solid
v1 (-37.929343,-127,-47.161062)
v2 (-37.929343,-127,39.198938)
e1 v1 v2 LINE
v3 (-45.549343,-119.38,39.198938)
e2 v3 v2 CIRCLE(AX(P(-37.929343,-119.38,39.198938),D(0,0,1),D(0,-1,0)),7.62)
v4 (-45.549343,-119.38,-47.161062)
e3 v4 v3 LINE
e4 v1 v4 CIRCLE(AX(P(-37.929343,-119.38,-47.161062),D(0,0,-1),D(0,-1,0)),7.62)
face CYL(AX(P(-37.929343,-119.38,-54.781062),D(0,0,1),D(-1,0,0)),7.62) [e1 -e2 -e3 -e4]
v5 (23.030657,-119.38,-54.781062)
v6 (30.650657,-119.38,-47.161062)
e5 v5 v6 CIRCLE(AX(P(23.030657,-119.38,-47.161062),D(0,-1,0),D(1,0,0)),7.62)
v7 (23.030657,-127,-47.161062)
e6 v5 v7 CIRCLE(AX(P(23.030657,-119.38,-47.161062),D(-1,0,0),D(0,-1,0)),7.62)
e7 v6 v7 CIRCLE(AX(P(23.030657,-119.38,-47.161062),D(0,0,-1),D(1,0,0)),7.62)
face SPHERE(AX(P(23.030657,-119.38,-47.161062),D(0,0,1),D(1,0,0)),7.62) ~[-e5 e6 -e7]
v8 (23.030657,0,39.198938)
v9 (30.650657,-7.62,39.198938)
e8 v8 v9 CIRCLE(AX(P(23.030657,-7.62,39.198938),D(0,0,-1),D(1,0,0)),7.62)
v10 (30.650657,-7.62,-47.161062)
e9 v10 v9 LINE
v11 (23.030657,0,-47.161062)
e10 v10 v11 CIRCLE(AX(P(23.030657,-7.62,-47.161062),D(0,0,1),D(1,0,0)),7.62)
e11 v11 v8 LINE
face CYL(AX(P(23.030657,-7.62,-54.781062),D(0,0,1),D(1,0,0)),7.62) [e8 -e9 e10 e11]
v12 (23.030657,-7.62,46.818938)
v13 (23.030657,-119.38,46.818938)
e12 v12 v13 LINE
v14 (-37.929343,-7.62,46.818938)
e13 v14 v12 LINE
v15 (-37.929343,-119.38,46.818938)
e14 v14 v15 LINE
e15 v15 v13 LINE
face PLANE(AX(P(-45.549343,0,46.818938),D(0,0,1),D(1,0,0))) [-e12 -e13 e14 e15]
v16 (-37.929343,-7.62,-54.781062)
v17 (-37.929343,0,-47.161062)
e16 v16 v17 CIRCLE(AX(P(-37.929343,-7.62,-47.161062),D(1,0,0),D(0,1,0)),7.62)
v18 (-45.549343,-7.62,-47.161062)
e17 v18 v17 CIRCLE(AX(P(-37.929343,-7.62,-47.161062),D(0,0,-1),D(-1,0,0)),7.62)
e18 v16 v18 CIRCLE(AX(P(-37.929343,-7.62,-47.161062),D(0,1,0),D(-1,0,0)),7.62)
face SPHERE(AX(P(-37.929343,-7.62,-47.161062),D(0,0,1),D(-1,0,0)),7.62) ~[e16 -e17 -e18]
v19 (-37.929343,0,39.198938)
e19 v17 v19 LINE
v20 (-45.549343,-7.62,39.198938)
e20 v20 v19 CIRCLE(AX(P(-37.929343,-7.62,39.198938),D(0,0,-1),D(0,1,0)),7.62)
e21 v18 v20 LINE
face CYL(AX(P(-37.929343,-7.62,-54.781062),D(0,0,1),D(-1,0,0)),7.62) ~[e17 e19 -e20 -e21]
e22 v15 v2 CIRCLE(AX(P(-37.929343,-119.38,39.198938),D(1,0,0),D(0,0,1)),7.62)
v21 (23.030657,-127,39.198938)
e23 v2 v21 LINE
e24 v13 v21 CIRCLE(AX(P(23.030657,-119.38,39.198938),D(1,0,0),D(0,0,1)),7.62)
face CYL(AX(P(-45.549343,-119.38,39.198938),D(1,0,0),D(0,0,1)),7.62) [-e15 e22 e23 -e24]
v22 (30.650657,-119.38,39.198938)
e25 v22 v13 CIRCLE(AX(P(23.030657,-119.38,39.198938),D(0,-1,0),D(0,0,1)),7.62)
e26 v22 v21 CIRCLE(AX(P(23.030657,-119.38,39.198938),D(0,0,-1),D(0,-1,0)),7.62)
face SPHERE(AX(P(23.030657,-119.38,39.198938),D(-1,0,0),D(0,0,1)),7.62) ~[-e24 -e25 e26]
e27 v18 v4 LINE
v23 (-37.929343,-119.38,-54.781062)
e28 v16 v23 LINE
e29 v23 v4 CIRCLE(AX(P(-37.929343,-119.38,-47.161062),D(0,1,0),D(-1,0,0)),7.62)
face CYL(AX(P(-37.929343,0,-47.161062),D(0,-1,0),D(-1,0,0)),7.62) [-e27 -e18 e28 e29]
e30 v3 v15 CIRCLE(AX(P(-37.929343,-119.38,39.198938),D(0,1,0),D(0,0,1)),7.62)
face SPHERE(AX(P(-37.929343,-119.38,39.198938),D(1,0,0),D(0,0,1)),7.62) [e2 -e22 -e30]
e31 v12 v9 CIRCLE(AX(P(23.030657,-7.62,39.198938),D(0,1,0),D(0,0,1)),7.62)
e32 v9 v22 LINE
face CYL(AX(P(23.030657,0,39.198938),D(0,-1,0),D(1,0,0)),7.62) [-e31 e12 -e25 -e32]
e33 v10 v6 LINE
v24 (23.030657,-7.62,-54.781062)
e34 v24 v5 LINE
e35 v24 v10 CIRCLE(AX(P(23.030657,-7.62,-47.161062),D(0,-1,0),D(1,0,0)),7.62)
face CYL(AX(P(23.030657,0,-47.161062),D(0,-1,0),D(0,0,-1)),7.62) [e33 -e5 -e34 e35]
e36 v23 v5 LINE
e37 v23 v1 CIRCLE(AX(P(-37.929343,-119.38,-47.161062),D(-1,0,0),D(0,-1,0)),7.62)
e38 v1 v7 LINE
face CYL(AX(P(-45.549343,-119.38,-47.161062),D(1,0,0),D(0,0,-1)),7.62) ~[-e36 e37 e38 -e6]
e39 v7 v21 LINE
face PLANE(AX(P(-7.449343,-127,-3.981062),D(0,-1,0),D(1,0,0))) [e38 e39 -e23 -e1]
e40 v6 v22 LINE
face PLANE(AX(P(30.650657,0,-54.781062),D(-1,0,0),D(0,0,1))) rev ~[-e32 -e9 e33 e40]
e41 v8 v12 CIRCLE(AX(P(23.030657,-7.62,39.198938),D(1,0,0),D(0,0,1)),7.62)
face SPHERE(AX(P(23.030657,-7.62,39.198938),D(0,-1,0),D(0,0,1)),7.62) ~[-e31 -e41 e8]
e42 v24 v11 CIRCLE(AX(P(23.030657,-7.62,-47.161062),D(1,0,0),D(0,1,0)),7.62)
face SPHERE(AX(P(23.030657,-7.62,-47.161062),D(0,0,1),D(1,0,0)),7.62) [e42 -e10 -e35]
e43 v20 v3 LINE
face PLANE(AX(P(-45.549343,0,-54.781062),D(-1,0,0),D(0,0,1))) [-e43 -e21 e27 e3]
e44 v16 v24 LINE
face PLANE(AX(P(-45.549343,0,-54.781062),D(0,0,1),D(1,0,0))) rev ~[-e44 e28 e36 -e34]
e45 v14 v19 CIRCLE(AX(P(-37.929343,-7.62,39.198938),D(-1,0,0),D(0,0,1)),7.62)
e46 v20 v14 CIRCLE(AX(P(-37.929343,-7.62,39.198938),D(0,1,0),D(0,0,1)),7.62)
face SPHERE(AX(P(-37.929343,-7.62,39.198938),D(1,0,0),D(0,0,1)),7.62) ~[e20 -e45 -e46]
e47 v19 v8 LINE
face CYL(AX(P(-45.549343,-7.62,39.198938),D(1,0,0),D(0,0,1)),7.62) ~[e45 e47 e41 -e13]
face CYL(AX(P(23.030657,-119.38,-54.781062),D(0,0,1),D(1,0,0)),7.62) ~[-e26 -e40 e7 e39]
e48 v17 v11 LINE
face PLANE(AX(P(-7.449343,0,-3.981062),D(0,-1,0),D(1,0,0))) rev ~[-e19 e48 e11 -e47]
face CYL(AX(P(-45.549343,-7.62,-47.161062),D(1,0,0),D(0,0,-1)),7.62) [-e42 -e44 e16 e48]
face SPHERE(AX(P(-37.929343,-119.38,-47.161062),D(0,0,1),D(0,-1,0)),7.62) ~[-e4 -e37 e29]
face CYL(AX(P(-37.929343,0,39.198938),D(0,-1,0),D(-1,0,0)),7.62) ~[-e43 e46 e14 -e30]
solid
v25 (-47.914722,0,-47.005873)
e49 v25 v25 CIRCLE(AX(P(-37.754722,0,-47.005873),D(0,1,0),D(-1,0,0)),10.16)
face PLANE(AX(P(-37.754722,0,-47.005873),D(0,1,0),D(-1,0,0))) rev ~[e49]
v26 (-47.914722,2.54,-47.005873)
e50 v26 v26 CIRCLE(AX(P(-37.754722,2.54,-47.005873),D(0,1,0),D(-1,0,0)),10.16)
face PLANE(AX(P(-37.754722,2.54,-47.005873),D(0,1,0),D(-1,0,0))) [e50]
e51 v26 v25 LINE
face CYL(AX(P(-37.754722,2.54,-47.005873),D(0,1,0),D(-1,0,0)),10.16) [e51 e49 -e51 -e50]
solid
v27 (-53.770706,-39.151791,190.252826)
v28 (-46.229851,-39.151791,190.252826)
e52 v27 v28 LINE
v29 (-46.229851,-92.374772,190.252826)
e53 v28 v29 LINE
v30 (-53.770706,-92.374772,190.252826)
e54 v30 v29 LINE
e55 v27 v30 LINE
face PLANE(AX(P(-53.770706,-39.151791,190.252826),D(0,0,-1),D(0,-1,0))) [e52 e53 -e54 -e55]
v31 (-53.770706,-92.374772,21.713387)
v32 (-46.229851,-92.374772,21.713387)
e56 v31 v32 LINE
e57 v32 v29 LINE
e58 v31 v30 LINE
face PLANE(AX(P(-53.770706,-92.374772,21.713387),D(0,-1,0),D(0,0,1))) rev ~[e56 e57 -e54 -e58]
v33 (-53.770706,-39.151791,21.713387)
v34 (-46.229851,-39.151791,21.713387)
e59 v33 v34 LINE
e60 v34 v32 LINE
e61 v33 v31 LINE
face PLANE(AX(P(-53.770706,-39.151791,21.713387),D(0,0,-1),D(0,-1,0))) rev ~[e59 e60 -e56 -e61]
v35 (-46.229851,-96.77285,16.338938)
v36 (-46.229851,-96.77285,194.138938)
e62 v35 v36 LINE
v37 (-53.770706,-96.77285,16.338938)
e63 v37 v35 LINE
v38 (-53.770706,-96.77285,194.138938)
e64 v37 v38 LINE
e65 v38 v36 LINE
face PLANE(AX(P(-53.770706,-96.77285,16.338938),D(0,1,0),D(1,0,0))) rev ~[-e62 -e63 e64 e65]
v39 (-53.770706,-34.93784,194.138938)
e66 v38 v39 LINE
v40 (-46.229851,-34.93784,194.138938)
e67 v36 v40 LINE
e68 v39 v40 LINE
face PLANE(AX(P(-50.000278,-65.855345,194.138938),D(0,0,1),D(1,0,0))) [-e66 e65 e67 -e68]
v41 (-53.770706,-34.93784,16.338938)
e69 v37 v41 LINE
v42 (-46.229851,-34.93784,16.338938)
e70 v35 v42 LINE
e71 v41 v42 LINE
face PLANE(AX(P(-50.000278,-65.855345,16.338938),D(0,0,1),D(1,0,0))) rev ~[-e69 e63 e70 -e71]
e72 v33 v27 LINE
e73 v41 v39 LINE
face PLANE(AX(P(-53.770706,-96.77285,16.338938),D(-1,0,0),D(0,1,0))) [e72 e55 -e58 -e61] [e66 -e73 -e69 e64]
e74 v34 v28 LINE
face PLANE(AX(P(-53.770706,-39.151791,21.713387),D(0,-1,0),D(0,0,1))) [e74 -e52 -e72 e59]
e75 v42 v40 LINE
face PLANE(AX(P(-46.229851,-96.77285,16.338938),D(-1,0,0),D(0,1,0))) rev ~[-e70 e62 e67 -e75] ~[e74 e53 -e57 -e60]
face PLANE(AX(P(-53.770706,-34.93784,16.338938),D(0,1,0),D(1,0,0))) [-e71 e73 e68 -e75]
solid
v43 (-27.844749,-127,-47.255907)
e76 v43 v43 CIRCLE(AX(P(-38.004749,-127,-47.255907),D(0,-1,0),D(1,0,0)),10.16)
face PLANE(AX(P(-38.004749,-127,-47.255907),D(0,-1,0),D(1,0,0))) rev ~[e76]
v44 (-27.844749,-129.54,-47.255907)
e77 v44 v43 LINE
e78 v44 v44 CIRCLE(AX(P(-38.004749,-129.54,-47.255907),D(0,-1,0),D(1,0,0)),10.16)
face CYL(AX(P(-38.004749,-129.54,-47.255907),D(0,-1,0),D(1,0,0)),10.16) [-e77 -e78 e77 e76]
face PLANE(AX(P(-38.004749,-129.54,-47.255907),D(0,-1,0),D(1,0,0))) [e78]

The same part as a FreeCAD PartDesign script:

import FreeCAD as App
import Part
import Sketcher
from FreeCAD import Vector
Q = App.Units.Quantity

doc = App.newDocument("Part")
body = doc.addObject("PartDesign::Body", "Body")

# Sketch on XZ plane
sketch1 = body.newObject("Sketcher::SketchObject", "Sketch")
sketch1.AttachmentSupport = (doc.getObject("XZ_Plane"), [""])
sketch1.MapMode = "FlatFace"
sketch1.addGeometry(Part.LineSegment(Vector(-45.549343, 46.818938, 0), Vector(-45.549343, -54.781062, 0)), False)
sketch1.addGeometry(Part.LineSegment(Vector(-45.549343, -54.781062, 0), Vector(30.650657, -54.781062, 0)), False)
sketch1.addGeometry(Part.LineSegment(Vector(30.650657, -54.781062, 0), Vector(30.650657, 46.818938, 0)), False)
sketch1.addGeometry(Part.LineSegment(Vector(30.650657, 46.818938, 0), Vector(-45.549343, 46.818938, 0)), False)
sketch1.addConstraint(Sketcher.Constraint("Coincident", 0, 2, 1, 1))
sketch1.addConstraint(Sketcher.Constraint("Coincident", 1, 2, 2, 1))
sketch1.addConstraint(Sketcher.Constraint("Coincident", 2, 2, 3, 1))
sketch1.addConstraint(Sketcher.Constraint("Coincident", 3, 2, 0, 1))
sketch1.addConstraint(Sketcher.Constraint("Vertical", 0))
sketch1.addConstraint(Sketcher.Constraint("Horizontal", 1))
sketch1.addConstraint(Sketcher.Constraint("Vertical", 2))
sketch1.addConstraint(Sketcher.Constraint("Horizontal", 3))
sketch1.addConstraint(Sketcher.Constraint("DistanceX", 1, 1, 1, 2, Q("3 in")))
sketch1.addConstraint(Sketcher.Constraint("DistanceY", 0, 2, 0, 1, Q("4 in")))
sketch1.addConstraint(Sketcher.Constraint("DistanceX", 0, 2, -1, 1, Q("45.549343 mm")))
sketch1.addConstraint(Sketcher.Constraint("DistanceY", 0, 2, -1, 1, Q("54.781062 mm")))
pad1 = body.newObject("PartDesign::Pad", "Pad")
pad1.Profile = sketch1
pad1.Length = Q("5 in")
doc.recompute()

fillet = body.newObject("PartDesign::Fillet", "Fillet")
fillet.Base = (pad1, ["Edge1"])
fillet.UseAllEdges = True
fillet.Radius = Q("0.3 in")
body2 = doc.addObject("PartDesign::Body", "Body001")

# Sketch on XZ plane
sketch2 = body2.newObject("Sketcher::SketchObject", "Sketch001")
sketch2.AttachmentSupport = (doc.getObject("XZ_Plane001"), [""])
sketch2.MapMode = "FlatFace"
sketch2.AttachmentOffset = App.Placement(Vector(0, 0, 5.1 * 25.4), App.Rotation())
sketch2.addGeometry(Part.Circle(Vector(-38.004749, -47.255907, 0), Vector(0, 0, 1), 10.16), False)
sketch2.addConstraint(Sketcher.Constraint("Diameter", 0, Q("0.8 in")))
sketch2.addConstraint(Sketcher.Constraint("DistanceX", 0, 3, -1, 1, Q("38.004749 mm")))
sketch2.addConstraint(Sketcher.Constraint("DistanceY", 0, 3, -1, 1, Q("47.255907 mm")))
pad2 = body2.newObject("PartDesign::Pad", "Pad001")
pad2.Profile = sketch2
pad2.Length = Q("0.1 in")
pad2.Reversed = True
body3 = doc.addObject("PartDesign::Body", "Body002")

# Sketch on XZ plane
sketch3 = body3.newObject("Sketcher::SketchObject", "Sketch002")
sketch3.AttachmentSupport = (doc.getObject("XZ_Plane002"), [""])
sketch3.MapMode = "FlatFace"
sketch3.AttachmentOffset = App.Placement(Vector(0, 0, -0.1 * 25.4), App.Rotation())
sketch3.addGeometry(Part.Circle(Vector(-37.754722, -47.005873, 0), Vector(0, 0, 1), 10.16), False)
sketch3.addConstraint(Sketcher.Constraint("Diameter", 0, Q("0.8 in")))
sketch3.addConstraint(Sketcher.Constraint("DistanceX", 0, 3, -1, 1, Q("37.754722 mm")))
sketch3.addConstraint(Sketcher.Constraint("DistanceY", 0, 3, -1, 1, Q("47.005873 mm")))
pad3 = body3.newObject("PartDesign::Pad", "Pad002")
pad3.Profile = sketch3
pad3.Length = Q("0.1 in")
body4 = doc.addObject("PartDesign::Body", "Body003")

# Sketch on XY plane
sketch4 = body4.newObject("Sketcher::SketchObject", "Sketch003")
sketch4.AttachmentSupport = (doc.getObject("XY_Plane003"), [""])
sketch4.MapMode = "FlatFace"
sketch4.AttachmentOffset = App.Placement(Vector(0, 0, 16.338938), App.Rotation())
sketch4.addGeometry(Part.LineSegment(Vector(-53.770706, -34.93784, 0), Vector(-53.770706, -96.77285, 0)), False)
sketch4.addGeometry(Part.LineSegment(Vector(-53.770706, -96.77285, 0), Vector(-46.229851, -96.77285, 0)), False)
sketch4.addGeometry(Part.LineSegment(Vector(-46.229851, -96.77285, 0), Vector(-46.229851, -34.93784, 0)), False)
sketch4.addGeometry(Part.LineSegment(Vector(-46.229851, -34.93784, 0), Vector(-53.770706, -34.93784, 0)), False)
sketch4.addConstraint(Sketcher.Constraint("Coincident", 0, 2, 1, 1))
sketch4.addConstraint(Sketcher.Constraint("Coincident", 1, 2, 2, 1))
sketch4.addConstraint(Sketcher.Constraint("Coincident", 2, 2, 3, 1))
sketch4.addConstraint(Sketcher.Constraint("Coincident", 3, 2, 0, 1))
sketch4.addConstraint(Sketcher.Constraint("Vertical", 0))
sketch4.addConstraint(Sketcher.Constraint("Horizontal", 1))
sketch4.addConstraint(Sketcher.Constraint("Vertical", 2))
sketch4.addConstraint(Sketcher.Constraint("Horizontal", 3))
sketch4.addConstraint(Sketcher.Constraint("DistanceY", 0, 2, 0, 1, Q("61.83501 mm")))
sketch4.addConstraint(Sketcher.Constraint("DistanceX", 1, 1, 1, 2, Q("7.540856 mm")))
sketch4.addConstraint(Sketcher.Constraint("DistanceY", 0, 2, -1, 1, Q("96.77285 mm")))
sketch4.addConstraint(Sketcher.Constraint("DistanceX", 1, 2, -1, 1, Q("46.229851 mm")))
pad4 = body4.newObject("PartDesign::Pad", "Pad003")
pad4.Profile = sketch4
pad4.Length = Q("7 in")

# Sketch on YZ plane
sketch5 = body4.newObject("Sketcher::SketchObject", "Sketch004")
sketch5.AttachmentSupport = (doc.getObject("YZ_Plane003"), [""])
sketch5.MapMode = "FlatFace"
sketch5.AttachmentOffset = App.Placement(Vector(0, 0, -53.770706), App.Rotation())
sketch5.addGeometry(Part.LineSegment(Vector(-39.151791, 190.252826, 0), Vector(-39.151791, 21.713387, 0)), False)
sketch5.addGeometry(Part.LineSegment(Vector(-39.151791, 21.713387, 0), Vector(-92.374772, 21.713387, 0)), False)
sketch5.addGeometry(Part.LineSegment(Vector(-92.374772, 21.713387, 0), Vector(-92.374772, 190.252826, 0)), False)
sketch5.addGeometry(Part.LineSegment(Vector(-92.374772, 190.252826, 0), Vector(-39.151791, 190.252826, 0)), False)
sketch5.addConstraint(Sketcher.Constraint("Coincident", 0, 2, 1, 1))
sketch5.addConstraint(Sketcher.Constraint("Coincident", 1, 2, 2, 1))
sketch5.addConstraint(Sketcher.Constraint("Coincident", 2, 2, 3, 1))
sketch5.addConstraint(Sketcher.Constraint("Coincident", 3, 2, 0, 1))
sketch5.addConstraint(Sketcher.Constraint("Vertical", 0))
sketch5.addConstraint(Sketcher.Constraint("Horizontal", 1))
sketch5.addConstraint(Sketcher.Constraint("Vertical", 2))
sketch5.addConstraint(Sketcher.Constraint("Horizontal", 3))
sketch5.addConstraint(Sketcher.Constraint("DistanceX", 1, 2, 1, 1, Q("53.22298 mm")))
sketch5.addConstraint(Sketcher.Constraint("DistanceY", 0, 2, 0, 1, Q("168.539438 mm")))
sketch5.addConstraint(Sketcher.Constraint("DistanceX", 0, 2, -1, 1, Q("39.151791 mm")))
sketch5.addConstraint(Sketcher.Constraint("DistanceY", -1, 1, 0, 2, Q("21.713387 mm")))
pocket1 = body4.newObject("PartDesign::Pocket", "Pocket")
pocket1.Profile = sketch5
pocket1.Type = "ThroughAll"
pocket1.Reversed = True

doc.recompute()
